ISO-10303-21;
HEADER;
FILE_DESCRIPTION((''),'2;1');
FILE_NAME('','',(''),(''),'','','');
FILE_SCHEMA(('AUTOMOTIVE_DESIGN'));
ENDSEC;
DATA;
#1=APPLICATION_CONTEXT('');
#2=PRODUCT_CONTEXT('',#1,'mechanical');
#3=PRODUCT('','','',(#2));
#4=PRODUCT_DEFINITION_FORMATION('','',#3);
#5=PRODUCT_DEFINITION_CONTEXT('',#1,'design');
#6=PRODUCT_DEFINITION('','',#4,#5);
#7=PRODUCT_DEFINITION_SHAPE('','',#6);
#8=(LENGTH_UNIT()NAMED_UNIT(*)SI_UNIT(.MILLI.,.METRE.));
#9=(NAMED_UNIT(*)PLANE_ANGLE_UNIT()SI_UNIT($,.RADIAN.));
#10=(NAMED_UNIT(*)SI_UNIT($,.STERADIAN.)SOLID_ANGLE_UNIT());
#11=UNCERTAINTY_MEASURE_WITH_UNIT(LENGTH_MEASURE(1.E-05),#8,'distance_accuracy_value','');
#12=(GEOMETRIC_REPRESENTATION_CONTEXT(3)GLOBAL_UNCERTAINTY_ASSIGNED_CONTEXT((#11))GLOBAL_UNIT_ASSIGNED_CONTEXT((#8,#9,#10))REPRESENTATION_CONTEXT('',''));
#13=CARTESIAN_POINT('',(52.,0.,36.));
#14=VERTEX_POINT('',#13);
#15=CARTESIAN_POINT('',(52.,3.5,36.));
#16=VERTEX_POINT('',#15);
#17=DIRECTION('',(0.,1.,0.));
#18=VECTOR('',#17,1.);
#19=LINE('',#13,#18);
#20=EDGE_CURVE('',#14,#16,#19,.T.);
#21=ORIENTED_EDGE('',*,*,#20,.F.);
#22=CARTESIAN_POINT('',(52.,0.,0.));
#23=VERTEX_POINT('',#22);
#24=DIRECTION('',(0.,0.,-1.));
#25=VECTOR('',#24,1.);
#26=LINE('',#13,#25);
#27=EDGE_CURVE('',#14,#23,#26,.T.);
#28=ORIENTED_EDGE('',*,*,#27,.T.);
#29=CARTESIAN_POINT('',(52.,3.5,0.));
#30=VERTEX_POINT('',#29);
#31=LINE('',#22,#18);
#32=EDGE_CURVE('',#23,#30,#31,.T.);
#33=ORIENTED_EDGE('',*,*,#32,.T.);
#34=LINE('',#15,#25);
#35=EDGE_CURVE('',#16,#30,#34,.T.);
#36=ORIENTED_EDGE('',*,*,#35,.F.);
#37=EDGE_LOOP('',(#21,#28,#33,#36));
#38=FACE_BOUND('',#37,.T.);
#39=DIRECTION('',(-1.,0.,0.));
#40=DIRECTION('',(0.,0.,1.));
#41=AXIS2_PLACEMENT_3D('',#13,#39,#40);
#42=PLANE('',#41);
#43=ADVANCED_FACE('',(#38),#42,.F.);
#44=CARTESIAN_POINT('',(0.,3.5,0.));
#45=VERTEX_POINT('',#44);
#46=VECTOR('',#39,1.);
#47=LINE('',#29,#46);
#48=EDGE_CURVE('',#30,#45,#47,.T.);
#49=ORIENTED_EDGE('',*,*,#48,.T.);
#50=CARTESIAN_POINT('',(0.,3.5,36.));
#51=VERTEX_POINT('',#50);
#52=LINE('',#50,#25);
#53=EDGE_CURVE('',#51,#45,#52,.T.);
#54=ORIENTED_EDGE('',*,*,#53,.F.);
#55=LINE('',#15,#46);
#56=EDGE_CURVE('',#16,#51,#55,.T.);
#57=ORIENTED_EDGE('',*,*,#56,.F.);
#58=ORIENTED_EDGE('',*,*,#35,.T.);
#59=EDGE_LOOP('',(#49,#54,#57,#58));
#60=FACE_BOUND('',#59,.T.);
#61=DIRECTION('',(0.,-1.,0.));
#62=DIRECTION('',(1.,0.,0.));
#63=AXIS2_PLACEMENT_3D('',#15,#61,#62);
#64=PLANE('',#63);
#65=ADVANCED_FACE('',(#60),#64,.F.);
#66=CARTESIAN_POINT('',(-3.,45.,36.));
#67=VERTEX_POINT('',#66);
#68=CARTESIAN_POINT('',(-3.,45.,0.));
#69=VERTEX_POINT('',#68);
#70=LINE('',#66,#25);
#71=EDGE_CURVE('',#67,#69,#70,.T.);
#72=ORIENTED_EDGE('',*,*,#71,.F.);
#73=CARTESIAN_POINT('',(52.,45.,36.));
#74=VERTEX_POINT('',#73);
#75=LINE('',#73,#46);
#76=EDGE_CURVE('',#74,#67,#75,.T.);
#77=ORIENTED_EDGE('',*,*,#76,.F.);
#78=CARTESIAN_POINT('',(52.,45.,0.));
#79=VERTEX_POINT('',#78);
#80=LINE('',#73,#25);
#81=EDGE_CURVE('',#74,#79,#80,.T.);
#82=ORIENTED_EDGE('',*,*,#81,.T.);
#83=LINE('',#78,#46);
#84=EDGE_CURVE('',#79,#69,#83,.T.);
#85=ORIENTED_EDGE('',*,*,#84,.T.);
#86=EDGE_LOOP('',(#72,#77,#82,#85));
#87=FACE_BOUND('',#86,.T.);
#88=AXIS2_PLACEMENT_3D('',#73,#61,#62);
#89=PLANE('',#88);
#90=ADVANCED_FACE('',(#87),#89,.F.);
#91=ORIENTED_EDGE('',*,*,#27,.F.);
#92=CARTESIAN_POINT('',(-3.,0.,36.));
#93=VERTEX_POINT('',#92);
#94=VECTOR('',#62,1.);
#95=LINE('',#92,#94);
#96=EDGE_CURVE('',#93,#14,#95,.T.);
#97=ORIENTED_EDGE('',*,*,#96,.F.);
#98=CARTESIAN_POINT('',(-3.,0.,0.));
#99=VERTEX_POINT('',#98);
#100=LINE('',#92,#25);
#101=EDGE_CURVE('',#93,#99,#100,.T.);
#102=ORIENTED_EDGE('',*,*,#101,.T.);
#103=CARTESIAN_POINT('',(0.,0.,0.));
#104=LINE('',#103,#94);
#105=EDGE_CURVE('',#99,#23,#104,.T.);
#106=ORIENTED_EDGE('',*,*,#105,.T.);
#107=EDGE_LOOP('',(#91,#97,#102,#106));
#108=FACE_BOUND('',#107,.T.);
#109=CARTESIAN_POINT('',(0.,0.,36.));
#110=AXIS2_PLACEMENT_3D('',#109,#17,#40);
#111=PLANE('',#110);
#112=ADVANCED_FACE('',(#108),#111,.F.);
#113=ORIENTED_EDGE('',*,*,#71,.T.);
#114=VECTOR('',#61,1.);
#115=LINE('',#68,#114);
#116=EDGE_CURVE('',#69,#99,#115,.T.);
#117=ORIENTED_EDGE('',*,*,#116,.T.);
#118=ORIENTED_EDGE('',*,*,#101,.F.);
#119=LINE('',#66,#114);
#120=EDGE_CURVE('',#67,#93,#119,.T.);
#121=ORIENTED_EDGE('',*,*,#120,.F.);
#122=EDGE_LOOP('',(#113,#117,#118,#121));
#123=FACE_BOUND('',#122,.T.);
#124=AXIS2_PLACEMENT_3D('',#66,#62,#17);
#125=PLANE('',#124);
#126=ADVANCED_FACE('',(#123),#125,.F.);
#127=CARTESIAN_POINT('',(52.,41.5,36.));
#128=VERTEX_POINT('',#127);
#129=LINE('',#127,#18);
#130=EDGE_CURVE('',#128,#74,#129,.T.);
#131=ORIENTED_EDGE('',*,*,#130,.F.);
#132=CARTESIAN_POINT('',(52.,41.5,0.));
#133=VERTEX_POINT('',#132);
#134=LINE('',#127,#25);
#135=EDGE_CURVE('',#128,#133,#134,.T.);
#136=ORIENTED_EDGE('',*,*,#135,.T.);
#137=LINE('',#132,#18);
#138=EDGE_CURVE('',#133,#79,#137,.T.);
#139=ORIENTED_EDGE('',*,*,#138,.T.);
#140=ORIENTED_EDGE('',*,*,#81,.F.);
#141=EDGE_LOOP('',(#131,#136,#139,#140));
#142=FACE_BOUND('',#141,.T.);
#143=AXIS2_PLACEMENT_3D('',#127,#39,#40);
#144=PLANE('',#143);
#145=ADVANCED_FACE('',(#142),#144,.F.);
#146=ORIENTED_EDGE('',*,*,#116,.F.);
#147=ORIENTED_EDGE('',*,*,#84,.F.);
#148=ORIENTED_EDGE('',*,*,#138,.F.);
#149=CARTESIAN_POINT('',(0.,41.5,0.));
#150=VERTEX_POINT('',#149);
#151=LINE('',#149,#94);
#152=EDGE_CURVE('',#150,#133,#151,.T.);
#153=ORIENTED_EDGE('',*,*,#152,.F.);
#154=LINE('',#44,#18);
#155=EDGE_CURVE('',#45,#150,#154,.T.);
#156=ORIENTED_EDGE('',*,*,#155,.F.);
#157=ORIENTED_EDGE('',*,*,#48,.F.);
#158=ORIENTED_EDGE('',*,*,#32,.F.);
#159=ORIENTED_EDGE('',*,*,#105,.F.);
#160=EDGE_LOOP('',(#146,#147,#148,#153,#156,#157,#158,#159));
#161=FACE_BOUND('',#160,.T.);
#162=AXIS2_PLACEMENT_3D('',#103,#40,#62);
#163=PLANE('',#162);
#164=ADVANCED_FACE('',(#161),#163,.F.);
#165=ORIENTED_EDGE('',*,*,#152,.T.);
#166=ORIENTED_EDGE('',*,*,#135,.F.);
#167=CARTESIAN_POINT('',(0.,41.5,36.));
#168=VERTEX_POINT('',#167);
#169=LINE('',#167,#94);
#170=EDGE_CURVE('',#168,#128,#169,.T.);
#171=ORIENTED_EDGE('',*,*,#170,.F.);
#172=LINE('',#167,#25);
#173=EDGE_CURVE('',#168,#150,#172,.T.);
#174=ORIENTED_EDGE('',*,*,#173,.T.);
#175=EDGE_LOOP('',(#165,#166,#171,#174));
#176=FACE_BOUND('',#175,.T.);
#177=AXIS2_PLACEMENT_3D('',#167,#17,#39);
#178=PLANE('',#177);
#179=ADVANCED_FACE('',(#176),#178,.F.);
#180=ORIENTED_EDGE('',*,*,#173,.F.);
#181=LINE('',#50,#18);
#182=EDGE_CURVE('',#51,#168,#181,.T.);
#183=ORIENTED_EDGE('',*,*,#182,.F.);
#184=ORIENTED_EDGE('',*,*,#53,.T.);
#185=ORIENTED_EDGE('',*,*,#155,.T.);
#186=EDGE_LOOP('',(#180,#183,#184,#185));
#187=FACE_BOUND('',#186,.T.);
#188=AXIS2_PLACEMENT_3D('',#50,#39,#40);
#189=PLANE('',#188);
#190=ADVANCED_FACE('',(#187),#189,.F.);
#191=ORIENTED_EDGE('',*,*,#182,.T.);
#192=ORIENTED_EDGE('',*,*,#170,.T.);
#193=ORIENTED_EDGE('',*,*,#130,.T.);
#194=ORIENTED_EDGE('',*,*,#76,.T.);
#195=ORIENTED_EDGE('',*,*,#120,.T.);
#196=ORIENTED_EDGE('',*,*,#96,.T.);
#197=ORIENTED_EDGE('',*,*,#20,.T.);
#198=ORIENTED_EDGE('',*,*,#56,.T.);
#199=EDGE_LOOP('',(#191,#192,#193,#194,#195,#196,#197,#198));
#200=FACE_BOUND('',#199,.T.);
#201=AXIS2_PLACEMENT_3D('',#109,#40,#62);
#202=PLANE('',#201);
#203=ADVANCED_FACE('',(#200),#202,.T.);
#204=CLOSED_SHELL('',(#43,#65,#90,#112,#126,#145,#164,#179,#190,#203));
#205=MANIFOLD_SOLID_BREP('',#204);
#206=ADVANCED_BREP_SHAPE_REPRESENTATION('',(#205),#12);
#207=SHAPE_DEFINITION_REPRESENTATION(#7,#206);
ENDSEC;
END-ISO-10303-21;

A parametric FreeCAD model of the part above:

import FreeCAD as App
import Part
import Sketcher

V = App.Vector


def add_polygon(sketch, points):
    """Adds a closed chain of lines whose ends are joined by coincident constraints."""
    first, n = sketch.GeometryCount, len(points)
    for a, b in zip(points, points[1:] + points[:1]):
        sketch.addGeometry(Part.LineSegment(App.Vector(*a, 0), App.Vector(*b, 0)), False)
    for i in range(n):
        sketch.addConstraint(Sketcher.Constraint("Coincident", first + i, 2, first + (i + 1) % n, 1))

doc = App.newDocument("Part")
params = doc.addObject("Spreadsheet::Sheet", "Params")
for row, (alias, value) in enumerate([
    ("sketch1_width", "52 mm"),
    ("sketch1_width2", "55 mm"),
    ("sketch1_height", "38 mm"),
    ("sketch1_height2", "45 mm"),
    ("pad1_length", "36 mm"),
], start=1):
    params.set(f"A{row}", alias)
    params.set(f"B{row}", "=" + value)
    params.setAlias(f"B{row}", alias)

body = doc.addObject("PartDesign::Body", "Body")

# Sketch on XY plane
sketch1 = body.newObject("Sketcher::SketchObject", "Sketch")
sketch1.AttachmentSupport = (doc.getObject("XY_Plane"), [""])
sketch1.MapMode = "FlatFace"
add_polygon(sketch1, [(52, 0), (52, 3.5), (0, 3.5), (0, 41.5), (52, 41.5), (52, 45), (-3, 45), (-3, 0)])  # lines 0-7
sketch1.addConstraint([
    Sketcher.Constraint("Vertical", 0),
    Sketcher.Constraint("Horizontal", 1),
    Sketcher.Constraint("Vertical", 2),
    Sketcher.Constraint("Horizontal", 3),
    Sketcher.Constraint("Vertical", 4),
    Sketcher.Constraint("Horizontal", 5),
    Sketcher.Constraint("Vertical", 6),
    Sketcher.Constraint("Horizontal", 7),
    Sketcher.Constraint("PointOnObject", 1, 2, -2),
    Sketcher.Constraint("PointOnObject", 6, 2, -1),
    Sketcher.Constraint("Vertical", 0, 2, 3, 2),
    Sketcher.Constraint("Equal", 0, 4),
    Sketcher.Constraint("DistanceX", 1, 2, 1, 1, 52.0),
    Sketcher.Constraint("DistanceX", 5, 2, 5, 1, 55.0),
    Sketcher.Constraint("DistanceY", 2, 1, 2, 2, 38.0),
    Sketcher.Constraint("DistanceY", 6, 2, 6, 1, 45.0),
])
sketch1.setExpression("Constraints[20]", "Params.sketch1_width")
sketch1.setExpression("Constraints[21]", "Params.sketch1_width2")
sketch1.setExpression("Constraints[22]", "Params.sketch1_height")
sketch1.setExpression("Constraints[23]", "Params.sketch1_height2")
pad1 = body.newObject("PartDesign::Pad", "Pad")
pad1.Profile = sketch1
pad1.setExpression("Length", "Params.pad1_length")

doc.recompute()
